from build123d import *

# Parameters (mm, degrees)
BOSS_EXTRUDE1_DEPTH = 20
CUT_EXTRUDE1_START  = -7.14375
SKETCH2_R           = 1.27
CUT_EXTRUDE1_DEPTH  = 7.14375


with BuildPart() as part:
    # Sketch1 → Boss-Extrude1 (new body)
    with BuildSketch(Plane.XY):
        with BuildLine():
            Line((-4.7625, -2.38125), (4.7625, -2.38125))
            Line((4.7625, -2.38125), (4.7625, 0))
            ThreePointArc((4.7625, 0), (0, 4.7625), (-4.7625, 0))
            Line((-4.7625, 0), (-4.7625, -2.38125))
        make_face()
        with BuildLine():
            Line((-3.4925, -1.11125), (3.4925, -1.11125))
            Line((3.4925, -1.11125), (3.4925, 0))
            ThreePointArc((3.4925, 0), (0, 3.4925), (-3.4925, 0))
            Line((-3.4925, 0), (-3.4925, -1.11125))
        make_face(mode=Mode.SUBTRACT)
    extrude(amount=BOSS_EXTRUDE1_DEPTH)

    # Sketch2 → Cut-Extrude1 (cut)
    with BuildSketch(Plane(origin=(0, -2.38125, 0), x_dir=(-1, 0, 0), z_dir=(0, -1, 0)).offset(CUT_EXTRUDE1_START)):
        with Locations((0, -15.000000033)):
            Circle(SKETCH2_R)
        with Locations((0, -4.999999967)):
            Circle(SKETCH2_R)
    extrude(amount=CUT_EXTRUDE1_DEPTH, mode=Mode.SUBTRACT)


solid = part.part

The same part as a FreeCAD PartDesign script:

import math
import FreeCAD as App
import Part
import Sketcher
Q = App.Units.Quantity

doc = App.newDocument("Part")
body = doc.addObject("PartDesign::Body", "Body")

# Sketch on XY plane
sketch1 = doc.addObject("Sketcher::SketchObject", "Sketch")
body.addObject(sketch1)
sketch1.AttachmentSupport = (doc.XY_Plane, [""])
sketch1.MapMode = "FlatFace"
sketch1.addGeometry(Part.LineSegment(App.Vector(-4.7625, -2.38125, 0), App.Vector(4.7625, -2.38125, 0)), False)
sketch1.addGeometry(Part.LineSegment(App.Vector(4.7625, -2.38125, 0), App.Vector(4.7625, 0, 0)), False)
sketch1.addGeometry(Part.ArcOfCircle(Part.Circle(App.Vector(0, 0, 0), App.Vector(0, 0, 1), 4.7625), math.radians(0), math.radians(180)), False)
sketch1.addGeometry(Part.LineSegment(App.Vector(-4.7625, 0, 0), App.Vector(-4.7625, -2.38125, 0)), False)
sketch1.addGeometry(Part.LineSegment(App.Vector(3.4925, -1.11125, 0), App.Vector(-3.4925, -1.11125, 0)), False)
sketch1.addGeometry(Part.LineSegment(App.Vector(-3.4925, -1.11125, 0), App.Vector(-3.4925, 0, 0)), False)
sketch1.addGeometry(Part.ArcOfCircle(Part.Circle(App.Vector(0, 0, 0), App.Vector(0, 0, 1), 3.4925), math.radians(0), math.radians(180)), False)
sketch1.addGeometry(Part.LineSegment(App.Vector(3.4925, 0, 0), App.Vector(3.4925, -1.11125, 0)), False)
sketch1.addConstraint(Sketcher.Constraint("Coincident", 0, 2, 1, 1))
sketch1.addConstraint(Sketcher.Constraint("Tangent", 1, 2, 2, 1))
sketch1.addConstraint(Sketcher.Constraint("Tangent", 2, 2, 3, 1))
sketch1.addConstraint(Sketcher.Constraint("Coincident", 3, 2, 0, 1))
sketch1.addConstraint(Sketcher.Constraint("Coincident", 4, 2, 5, 1))
sketch1.addConstraint(Sketcher.Constraint("Tangent", 5, 2, 6, 2))
sketch1.addConstraint(Sketcher.Constraint("Tangent", 6, 1, 7, 1))
sketch1.addConstraint(Sketcher.Constraint("Coincident", 7, 2, 4, 1))
sketch1.addConstraint(Sketcher.Constraint("Horizontal", 0))
sketch1.addConstraint(Sketcher.Constraint("Vertical", 1))
sketch1.addConstraint(Sketcher.Constraint("Vertical", 3))
sketch1.addConstraint(Sketcher.Constraint("Horizontal", 4))
sketch1.addConstraint(Sketcher.Constraint("Vertical", 5))
sketch1.addConstraint(Sketcher.Constraint("Vertical", 7))
sketch1.addConstraint(Sketcher.Constraint("Coincident", 2, 3, -1, 1))
sketch1.addConstraint(Sketcher.Constraint("Coincident", 6, 3, -1, 1))
sketch1.addConstraint(Sketcher.Constraint("Radius", 2, Q("0.1875 in")))
sketch1.addConstraint(Sketcher.Constraint("Radius", 6, Q("0.1375 in")))
sketch1.addConstraint(Sketcher.Constraint("DistanceY", 1, 1, 1, 2, Q("0.09375 in")))
sketch1.addConstraint(Sketcher.Constraint("DistanceY", 3, 2, 4, 2, Q("0.05 in")))
pad1 = doc.addObject("PartDesign::Pad", "Pad")
body.addObject(pad1)
pad1.Profile = sketch1
pad1.Length = 20

# Sketch on XZ plane
sketch2 = doc.addObject("Sketcher::SketchObject", "Sketch001")
body.addObject(sketch2)
sketch2.AttachmentSupport = (doc.XZ_Plane, [""])
sketch2.MapMode = "FlatFace"
sketch2.AttachmentOffset = App.Placement(App.Vector(0, 0, -0.1875 * 25.4), App.Rotation())
sketch2.addGeometry(Part.Circle(App.Vector(0, 15, 0), App.Vector(0, 0, 1), 1.27), False)
sketch2.addGeometry(Part.Circle(App.Vector(0, 5, 0), App.Vector(0, 0, 1), 1.27), False)
sketch2.addConstraint(Sketcher.Constraint("Equal", 0, 1))
sketch2.addConstraint(Sketcher.Constraint("PointOnObject", 0, 3, -2))
sketch2.addConstraint(Sketcher.Constraint("PointOnObject", 1, 3, -2))
sketch2.addConstraint(Sketcher.Constraint("Diameter", 0, Q("0.1 in")))
sketch2.addConstraint(Sketcher.Constraint("DistanceY", -1, 1, 0, 3, 15.0))
sketch2.addConstraint(Sketcher.Constraint("DistanceY", -1, 1, 1, 3, 5.0))
pocket1 = doc.addObject("PartDesign::Pocket", "Pocket")
body.addObject(pocket1)
pocket1.Profile = sketch2
pocket1.Length = Q("0.28125 in")
pocket1.Reversed = True

doc.recompute()
